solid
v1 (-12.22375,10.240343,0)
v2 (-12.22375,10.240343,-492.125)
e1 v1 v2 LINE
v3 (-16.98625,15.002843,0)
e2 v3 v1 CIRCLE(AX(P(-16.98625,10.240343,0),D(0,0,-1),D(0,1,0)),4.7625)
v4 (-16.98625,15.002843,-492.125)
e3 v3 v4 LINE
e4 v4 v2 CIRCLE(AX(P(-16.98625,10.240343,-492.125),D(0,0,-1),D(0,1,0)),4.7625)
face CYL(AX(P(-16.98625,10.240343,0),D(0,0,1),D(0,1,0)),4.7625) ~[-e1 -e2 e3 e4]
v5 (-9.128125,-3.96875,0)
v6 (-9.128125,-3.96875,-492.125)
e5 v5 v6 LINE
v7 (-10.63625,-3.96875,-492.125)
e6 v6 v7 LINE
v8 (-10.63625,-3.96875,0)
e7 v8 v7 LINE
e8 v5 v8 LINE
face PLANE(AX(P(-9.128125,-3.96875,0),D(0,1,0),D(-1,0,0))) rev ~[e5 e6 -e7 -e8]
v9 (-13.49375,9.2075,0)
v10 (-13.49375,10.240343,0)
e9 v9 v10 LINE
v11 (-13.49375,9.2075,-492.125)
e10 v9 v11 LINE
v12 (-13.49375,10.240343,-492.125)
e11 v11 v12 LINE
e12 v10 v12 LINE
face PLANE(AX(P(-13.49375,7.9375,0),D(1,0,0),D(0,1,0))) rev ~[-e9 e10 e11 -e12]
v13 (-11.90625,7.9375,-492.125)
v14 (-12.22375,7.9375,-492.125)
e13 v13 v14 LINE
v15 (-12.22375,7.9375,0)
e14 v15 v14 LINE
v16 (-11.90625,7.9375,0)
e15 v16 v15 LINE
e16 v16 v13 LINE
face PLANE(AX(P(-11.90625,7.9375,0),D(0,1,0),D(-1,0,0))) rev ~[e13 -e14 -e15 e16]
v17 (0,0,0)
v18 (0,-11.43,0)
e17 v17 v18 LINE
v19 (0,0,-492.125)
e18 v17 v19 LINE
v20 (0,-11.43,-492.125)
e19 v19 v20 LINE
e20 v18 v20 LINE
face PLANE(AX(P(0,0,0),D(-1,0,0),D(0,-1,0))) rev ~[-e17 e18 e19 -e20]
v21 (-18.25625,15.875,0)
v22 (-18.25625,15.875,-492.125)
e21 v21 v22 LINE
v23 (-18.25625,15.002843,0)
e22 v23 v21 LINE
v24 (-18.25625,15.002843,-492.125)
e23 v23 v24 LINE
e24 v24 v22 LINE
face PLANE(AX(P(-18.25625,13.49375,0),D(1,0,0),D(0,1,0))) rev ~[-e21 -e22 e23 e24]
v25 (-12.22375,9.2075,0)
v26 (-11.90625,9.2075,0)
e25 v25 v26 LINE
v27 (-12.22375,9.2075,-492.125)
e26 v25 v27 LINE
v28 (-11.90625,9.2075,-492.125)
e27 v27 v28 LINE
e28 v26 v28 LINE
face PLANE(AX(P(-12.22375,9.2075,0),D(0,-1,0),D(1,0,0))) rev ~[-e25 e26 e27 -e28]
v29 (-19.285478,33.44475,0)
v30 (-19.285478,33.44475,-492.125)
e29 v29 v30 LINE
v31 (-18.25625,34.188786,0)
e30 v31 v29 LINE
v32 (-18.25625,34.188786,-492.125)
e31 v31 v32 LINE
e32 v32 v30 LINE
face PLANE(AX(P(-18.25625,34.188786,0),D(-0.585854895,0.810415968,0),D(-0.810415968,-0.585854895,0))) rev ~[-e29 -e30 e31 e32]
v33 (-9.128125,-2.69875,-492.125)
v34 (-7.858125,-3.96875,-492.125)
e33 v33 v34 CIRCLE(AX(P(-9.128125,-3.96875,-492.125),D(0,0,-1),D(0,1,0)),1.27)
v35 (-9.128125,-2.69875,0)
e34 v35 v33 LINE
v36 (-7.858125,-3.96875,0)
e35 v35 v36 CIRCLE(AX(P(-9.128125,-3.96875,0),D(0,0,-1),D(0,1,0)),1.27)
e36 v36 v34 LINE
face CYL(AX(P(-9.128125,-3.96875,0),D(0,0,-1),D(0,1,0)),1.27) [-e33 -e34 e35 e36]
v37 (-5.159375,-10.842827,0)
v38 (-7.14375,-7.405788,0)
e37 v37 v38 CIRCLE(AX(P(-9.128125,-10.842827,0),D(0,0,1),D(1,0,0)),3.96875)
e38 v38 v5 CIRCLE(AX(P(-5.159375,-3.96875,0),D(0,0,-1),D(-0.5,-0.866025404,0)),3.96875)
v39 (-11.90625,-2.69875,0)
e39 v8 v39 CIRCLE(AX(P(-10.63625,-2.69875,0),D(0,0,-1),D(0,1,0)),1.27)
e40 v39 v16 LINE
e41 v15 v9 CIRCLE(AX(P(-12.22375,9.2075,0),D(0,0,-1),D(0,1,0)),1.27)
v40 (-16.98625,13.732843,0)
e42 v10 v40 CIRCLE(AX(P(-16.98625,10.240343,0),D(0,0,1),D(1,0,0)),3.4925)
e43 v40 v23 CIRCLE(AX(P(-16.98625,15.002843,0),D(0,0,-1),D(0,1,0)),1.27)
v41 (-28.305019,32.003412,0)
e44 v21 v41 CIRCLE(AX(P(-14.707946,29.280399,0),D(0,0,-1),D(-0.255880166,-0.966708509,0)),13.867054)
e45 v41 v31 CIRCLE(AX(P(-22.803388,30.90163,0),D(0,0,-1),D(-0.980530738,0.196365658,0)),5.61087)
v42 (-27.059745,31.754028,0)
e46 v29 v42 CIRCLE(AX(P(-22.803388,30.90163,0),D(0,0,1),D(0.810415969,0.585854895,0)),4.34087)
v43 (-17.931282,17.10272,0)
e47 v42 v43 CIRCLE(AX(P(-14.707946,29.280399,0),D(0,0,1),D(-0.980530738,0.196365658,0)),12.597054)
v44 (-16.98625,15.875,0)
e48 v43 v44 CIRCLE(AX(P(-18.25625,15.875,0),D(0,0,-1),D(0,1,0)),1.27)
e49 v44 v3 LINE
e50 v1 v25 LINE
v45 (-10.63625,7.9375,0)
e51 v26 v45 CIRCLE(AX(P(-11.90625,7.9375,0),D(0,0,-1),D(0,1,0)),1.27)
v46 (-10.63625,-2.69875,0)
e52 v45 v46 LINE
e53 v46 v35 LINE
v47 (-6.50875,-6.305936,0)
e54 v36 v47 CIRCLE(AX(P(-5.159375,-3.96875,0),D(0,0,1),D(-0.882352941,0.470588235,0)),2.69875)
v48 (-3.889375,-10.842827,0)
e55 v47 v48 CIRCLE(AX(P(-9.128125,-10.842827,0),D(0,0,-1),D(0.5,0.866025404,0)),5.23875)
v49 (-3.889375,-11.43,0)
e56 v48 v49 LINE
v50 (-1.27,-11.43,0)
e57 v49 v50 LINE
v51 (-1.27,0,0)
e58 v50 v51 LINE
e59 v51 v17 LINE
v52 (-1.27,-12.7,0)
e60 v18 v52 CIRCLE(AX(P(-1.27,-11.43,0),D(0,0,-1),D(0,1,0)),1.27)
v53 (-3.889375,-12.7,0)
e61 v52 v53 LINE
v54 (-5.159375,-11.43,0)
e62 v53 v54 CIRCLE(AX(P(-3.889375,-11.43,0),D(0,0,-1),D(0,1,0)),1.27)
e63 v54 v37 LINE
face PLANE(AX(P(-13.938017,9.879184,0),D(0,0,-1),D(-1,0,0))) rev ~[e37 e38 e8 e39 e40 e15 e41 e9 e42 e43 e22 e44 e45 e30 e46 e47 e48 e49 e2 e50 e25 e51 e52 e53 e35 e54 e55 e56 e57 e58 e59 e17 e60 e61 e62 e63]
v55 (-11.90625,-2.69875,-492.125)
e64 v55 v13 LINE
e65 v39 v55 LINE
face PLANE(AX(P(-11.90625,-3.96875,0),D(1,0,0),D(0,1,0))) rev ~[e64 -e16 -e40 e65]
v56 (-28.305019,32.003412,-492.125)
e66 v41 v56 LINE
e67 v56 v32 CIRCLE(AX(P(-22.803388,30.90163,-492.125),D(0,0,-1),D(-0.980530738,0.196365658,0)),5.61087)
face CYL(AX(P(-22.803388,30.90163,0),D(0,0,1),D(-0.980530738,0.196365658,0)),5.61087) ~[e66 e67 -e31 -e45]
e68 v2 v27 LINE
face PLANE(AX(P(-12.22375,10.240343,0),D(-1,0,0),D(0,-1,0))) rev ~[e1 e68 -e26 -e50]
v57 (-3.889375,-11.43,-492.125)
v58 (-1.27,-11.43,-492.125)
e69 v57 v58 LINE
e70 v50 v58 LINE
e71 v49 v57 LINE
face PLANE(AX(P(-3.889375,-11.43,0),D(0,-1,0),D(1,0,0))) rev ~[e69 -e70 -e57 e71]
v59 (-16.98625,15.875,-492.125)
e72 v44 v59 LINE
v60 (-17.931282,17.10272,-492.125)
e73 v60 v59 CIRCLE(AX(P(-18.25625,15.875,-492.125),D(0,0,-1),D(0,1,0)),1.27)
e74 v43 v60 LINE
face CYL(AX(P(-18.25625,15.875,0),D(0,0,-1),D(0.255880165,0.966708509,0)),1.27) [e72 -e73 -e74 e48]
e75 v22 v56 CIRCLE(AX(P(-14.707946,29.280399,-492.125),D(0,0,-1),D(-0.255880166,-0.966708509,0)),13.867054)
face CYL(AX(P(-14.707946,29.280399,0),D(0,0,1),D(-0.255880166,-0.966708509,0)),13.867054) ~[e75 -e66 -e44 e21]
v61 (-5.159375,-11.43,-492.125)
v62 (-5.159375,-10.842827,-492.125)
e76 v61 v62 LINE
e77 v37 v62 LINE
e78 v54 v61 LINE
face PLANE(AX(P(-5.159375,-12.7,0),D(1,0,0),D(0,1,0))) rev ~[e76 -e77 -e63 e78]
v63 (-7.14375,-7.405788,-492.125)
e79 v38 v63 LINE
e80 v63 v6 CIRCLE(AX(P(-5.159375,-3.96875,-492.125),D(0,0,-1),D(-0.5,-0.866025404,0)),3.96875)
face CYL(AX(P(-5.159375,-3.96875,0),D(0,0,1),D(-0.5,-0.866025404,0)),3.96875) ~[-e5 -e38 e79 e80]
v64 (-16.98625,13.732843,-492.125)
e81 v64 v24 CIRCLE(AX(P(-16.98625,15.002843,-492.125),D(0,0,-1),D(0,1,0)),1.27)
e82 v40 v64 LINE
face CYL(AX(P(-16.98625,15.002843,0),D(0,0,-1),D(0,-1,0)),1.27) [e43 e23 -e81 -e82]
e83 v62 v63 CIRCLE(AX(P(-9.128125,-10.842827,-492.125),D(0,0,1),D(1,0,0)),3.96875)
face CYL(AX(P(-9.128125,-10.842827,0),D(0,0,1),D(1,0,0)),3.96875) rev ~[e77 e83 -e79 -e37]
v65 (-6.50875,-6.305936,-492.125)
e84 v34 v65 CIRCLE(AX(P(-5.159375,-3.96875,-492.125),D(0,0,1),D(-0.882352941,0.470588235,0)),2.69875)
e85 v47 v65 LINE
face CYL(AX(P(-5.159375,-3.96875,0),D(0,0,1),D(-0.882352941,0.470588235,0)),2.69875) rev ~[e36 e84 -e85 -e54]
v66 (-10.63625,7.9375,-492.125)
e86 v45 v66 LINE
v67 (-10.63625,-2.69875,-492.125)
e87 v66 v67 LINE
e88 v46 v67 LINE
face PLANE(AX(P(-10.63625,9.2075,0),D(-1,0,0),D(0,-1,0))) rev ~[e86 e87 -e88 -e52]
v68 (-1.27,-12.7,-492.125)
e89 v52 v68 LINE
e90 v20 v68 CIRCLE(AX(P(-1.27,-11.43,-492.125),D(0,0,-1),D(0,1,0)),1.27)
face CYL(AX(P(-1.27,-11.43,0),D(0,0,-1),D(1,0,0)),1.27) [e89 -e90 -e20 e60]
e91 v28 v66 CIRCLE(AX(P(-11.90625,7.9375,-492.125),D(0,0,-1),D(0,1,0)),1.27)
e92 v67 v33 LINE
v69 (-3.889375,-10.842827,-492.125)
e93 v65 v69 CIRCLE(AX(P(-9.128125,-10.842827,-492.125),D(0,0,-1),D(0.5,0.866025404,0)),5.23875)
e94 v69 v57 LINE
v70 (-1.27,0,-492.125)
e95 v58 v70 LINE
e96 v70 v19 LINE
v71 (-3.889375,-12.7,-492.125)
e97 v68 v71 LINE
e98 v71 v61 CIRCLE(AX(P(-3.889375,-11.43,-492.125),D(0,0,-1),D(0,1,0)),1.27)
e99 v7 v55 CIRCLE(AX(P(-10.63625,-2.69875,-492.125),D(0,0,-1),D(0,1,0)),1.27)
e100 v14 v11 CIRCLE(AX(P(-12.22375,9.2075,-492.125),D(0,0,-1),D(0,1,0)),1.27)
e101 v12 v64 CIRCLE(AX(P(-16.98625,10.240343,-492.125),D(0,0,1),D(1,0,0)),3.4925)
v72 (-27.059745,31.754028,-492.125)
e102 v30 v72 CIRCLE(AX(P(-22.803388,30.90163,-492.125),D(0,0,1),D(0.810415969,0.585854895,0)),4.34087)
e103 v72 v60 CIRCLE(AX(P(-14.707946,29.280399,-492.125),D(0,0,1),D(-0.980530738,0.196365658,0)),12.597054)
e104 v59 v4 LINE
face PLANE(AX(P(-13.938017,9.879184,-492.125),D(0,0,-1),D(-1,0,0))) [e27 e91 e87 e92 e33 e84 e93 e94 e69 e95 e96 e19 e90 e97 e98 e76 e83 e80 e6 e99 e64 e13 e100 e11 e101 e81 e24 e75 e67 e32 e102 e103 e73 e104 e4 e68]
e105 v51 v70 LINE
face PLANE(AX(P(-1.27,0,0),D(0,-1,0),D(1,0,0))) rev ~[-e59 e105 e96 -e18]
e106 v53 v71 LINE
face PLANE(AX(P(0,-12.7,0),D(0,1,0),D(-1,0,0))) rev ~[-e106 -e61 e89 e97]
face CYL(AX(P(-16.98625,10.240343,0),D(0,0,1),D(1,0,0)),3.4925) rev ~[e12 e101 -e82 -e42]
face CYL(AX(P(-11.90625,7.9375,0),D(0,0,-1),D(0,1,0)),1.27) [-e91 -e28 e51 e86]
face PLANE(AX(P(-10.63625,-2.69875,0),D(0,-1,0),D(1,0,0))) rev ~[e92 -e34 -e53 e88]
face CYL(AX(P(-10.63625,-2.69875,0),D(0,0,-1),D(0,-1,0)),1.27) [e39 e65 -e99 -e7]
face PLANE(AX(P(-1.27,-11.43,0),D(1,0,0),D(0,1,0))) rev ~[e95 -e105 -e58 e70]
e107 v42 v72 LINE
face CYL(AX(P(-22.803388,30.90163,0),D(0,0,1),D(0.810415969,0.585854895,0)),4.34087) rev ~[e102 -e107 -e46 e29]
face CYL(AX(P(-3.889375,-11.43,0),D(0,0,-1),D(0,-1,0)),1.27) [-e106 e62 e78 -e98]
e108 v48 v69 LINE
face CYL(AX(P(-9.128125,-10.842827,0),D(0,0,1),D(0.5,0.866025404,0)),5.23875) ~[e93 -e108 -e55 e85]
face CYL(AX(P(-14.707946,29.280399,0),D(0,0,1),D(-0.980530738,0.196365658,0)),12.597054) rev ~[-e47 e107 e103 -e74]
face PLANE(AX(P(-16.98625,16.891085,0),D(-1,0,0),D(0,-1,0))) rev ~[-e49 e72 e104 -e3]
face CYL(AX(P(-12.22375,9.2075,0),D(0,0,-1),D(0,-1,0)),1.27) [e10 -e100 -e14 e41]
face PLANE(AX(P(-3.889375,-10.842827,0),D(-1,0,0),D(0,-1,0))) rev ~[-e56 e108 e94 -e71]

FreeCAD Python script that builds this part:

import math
import FreeCAD as App
import Part
import Sketcher

V = App.Vector
Q = App.Units.Quantity


def edges_at(feature, points):
    """Names of the edges that pass closest to the given points."""
    edges = feature.Shape.Edges
    near = lambda p: min(range(len(edges)), key=lambda i: edges[i].distToShape(Part.Vertex(*p))[0])
    return sorted({f"Edge{near(p) + 1}" for p in points})

doc = App.newDocument("Part")
params = doc.addObject("Spreadsheet::Sheet", "Params")
for row, (alias, value) in enumerate([
    ("sketch1_height", "0.5 in"),
    ("sketch1_radius", "0.1875 in"),
    ("sketch1_radius2", "0.15625 in"),
    ("sketch1_width", "0.05 in"),
    ("sketch1_height2", "0.45 in"),
    ("pad1_length", "19.375 in"),
    ("fillet_radius", "0.05 in"),
], start=1):
    params.set(f"A{row}", alias)
    params.set(f"B{row}", "=" + value)
    params.setAlias(f"B{row}", alias)

body = doc.addObject("PartDesign::Body", "Body")

sketch1 = body.newObject("Sketcher::SketchObject", "Sketch")
sketch1.AttachmentSupport = (doc.getObject("XY_Plane"), [""])
sketch1.MapMode = "FlatFace"
sketch1.addGeometry([
    Part.LineSegment(V(0, -12.7, 0), V(0, 0, 0)),
    Part.LineSegment(V(0, 0, 0), V(-1.3, 0, 0)),
    Part.LineSegment(V(-1.3, 0, 0), V(-1.3, -11.4, 0)),
    Part.LineSegment(V(-1.3, -11.4, 0), V(-3.9, -11.4, 0)),
    Part.LineSegment(V(-3.9, -11.4, 0), V(-3.9, -10.8, 0)),
    Part.ArcOfCircle(Part.Circle(V(-9.1, -10.8, 0), V(0, 0, 1), 5.2), math.radians(0), math.radians(60)),
    Part.ArcOfCircle(Part.Circle(V(-5.2, -4, 0), V(0, 0, 1), 2.7), math.radians(152), math.radians(240)),
    Part.LineSegment(V(-7.5, -2.7, 0), V(-10.6, -2.7, 0)),
    Part.LineSegment(V(-10.6, -2.7, 0), V(-10.6, 9.2, 0)),
    Part.LineSegment(V(-10.6, 9.2, 0), V(-12.2, 9.2, 0)),
    Part.LineSegment(V(-12.2, 9.2, 0), V(-12.2, 10.2, 0)),
    Part.ArcOfCircle(Part.Circle(V(-17, 10.2, 0), V(0, 0, 1), 4.8), math.radians(0), math.radians(90)),
    Part.LineSegment(V(-17, 15, 0), V(-17, 16.9, 0)),
    Part.ArcOfCircle(Part.Circle(V(-14.7, 29.3, 0), V(0, 0, 1), 12.6), math.radians(169), math.radians(260)),
    Part.ArcOfCircle(Part.Circle(V(-22.8, 30.9, 0), V(0, 0, 1), 4.3), math.radians(36), math.radians(169)),
    Part.LineSegment(V(-19.3, 33.4, 0), V(-18.3, 34.2, 0)),
    Part.ArcOfCircle(Part.Circle(V(-22.8, 30.9, 0), V(0, 0, 1), 5.6), math.radians(36), math.radians(169)),
    Part.ArcOfCircle(Part.Circle(V(-14.7, 29.3, 0), V(0, 0, 1), 13.9), math.radians(169), math.radians(255)),
    Part.LineSegment(V(-18.3, 15.9, 0), V(-18.3, 13.5, 0)),
    Part.ArcOfCircle(Part.Circle(V(-17, 10.2, 0), V(0, 0, 1), 3.5), math.radians(0), math.radians(111)),
    Part.LineSegment(V(-13.5, 10.2, 0), V(-13.5, 7.9, 0)),
    Part.LineSegment(V(-13.5, 7.9, 0), V(-11.9, 7.9, 0)),
    Part.LineSegment(V(-11.9, 7.9, 0), V(-11.9, -4, 0)),
    Part.LineSegment(V(-11.9, -4, 0), V(-9.1, -4, 0)),
    Part.ArcOfCircle(Part.Circle(V(-5.2, -4, 0), V(0, 0, 1), 4), math.radians(-180), math.radians(-120)),
    Part.ArcOfCircle(Part.Circle(V(-9.1, -10.8, 0), V(0, 0, 1), 4), math.radians(0), math.radians(60)),
    Part.LineSegment(V(-5.2, -10.8, 0), V(-5.2, -12.7, 0)),
    Part.LineSegment(V(-5.2, -12.7, 0), V(0, -12.7, 0)),
], False)
sketch1.addConstraint([
    Sketcher.Constraint("Coincident", 0, 2, 1, 1),
    Sketcher.Constraint("Coincident", 1, 2, 2, 1),
    Sketcher.Constraint("Coincident", 2, 2, 3, 1),
    Sketcher.Constraint("Coincident", 3, 2, 4, 1),
    Sketcher.Constraint("Tangent", 4, 2, 5, 1),
    Sketcher.Constraint("Tangent", 5, 2, 6, 2),
    Sketcher.Constraint("Coincident", 6, 1, 7, 1),
    Sketcher.Constraint("Coincident", 7, 2, 8, 1),
    Sketcher.Constraint("Coincident", 8, 2, 9, 1),
    Sketcher.Constraint("Coincident", 9, 2, 10, 1),
    Sketcher.Constraint("Tangent", 10, 2, 11, 1),
    Sketcher.Constraint("Coincident", 11, 2, 12, 1),
    Sketcher.Constraint("Coincident", 12, 2, 13, 2),
    Sketcher.Constraint("Tangent", 13, 1, 14, 2),
    Sketcher.Constraint("Coincident", 14, 1, 15, 1),
    Sketcher.Constraint("Coincident", 15, 2, 16, 1),
    Sketcher.Constraint("Tangent", 16, 2, 17, 1),
    Sketcher.Constraint("Coincident", 17, 2, 18, 1),
    Sketcher.Constraint("Coincident", 18, 2, 19, 2),
    Sketcher.Constraint("Tangent", 19, 1, 20, 1),
    Sketcher.Constraint("Coincident", 20, 2, 21, 1),
    Sketcher.Constraint("Coincident", 21, 2, 22, 1),
    Sketcher.Constraint("Coincident", 22, 2, 23, 1),
    Sketcher.Constraint("Coincident", 23, 2, 24, 1),
    Sketcher.Constraint("Tangent", 24, 2, 25, 2),
    Sketcher.Constraint("Tangent", 25, 1, 26, 1),
    Sketcher.Constraint("Coincident", 26, 2, 27, 1),
    Sketcher.Constraint("Coincident", 27, 2, 0, 1),
    Sketcher.Constraint("Vertical", 0),
    Sketcher.Constraint("Horizontal", 1),
    Sketcher.Constraint("Vertical", 2),
    Sketcher.Constraint("Horizontal", 3),
    Sketcher.Constraint("Vertical", 4),
    Sketcher.Constraint("Horizontal", 7),
    Sketcher.Constraint("Vertical", 8),
    Sketcher.Constraint("Horizontal", 9),
    Sketcher.Constraint("Vertical", 10),
    Sketcher.Constraint("Vertical", 12),
    Sketcher.Constraint("Vertical", 18),
    Sketcher.Constraint("Vertical", 20),
    Sketcher.Constraint("Horizontal", 21),
    Sketcher.Constraint("Vertical", 22),
    Sketcher.Constraint("Horizontal", 23),
    Sketcher.Constraint("Vertical", 26),
    Sketcher.Constraint("Horizontal", 27),
    Sketcher.Constraint("Coincident", 0, 2, -1, 1),
    Sketcher.Constraint("Coincident", 16, 3, 14, 3),
    Sketcher.Constraint("Coincident", 17, 3, 13, 3),
    Sketcher.Constraint("Coincident", 19, 3, 11, 3),
    Sketcher.Constraint("Coincident", 24, 3, 6, 3),
    Sketcher.Constraint("Coincident", 25, 3, 5, 3),
    Sketcher.Constraint("Equal", 24, 25),
    Sketcher.Constraint("Horizontal", 24, 3, 22, 2),
    Sketcher.Constraint("Vertical", 19, 3, 11, 2),
    Sketcher.Constraint("Vertical", 15, 2, 17, 2),
    Sketcher.Constraint("Vertical", 25, 3, 23, 2),
    Sketcher.Constraint("Equal", 9, 21),
    Sketcher.Constraint("Equal", 8, 22),
    Sketcher.Constraint("DistanceY", 0, 1, 0, 2, Q("0.5 in")),
    Sketcher.Constraint("Radius", 11, Q("0.1875 in")),
    Sketcher.Constraint("Radius", 24, Q("0.15625 in")),
    Sketcher.Constraint("DistanceX", 1, 2, 1, 1, Q("0.05 in")),
    Sketcher.Constraint("DistanceY", 2, 2, 2, 1, Q("0.45 in")),
    Sketcher.Constraint("Radius", 19, Q("0.1375 in")),
    Sketcher.Constraint("Distance", 15, Q("0.05 in")),
    Sketcher.Constraint("DistanceX", 9, 2, 9, 1, Q("0.0625 in")),
    Sketcher.Constraint("DistanceX", 23, 1, 23, 2, Q("0.109375 in")),
    Sketcher.Constraint("DistanceX", 27, 1, 27, 2, Q("0.203125 in")),
    Sketcher.Constraint("DistanceY", 8, 1, 8, 2, Q("0.46875 in")),
    Sketcher.Constraint("DistanceY", 18, 2, 18, 1, Q("0.09375 in")),
    Sketcher.Constraint("DistanceX", 6, 3, 3, 2, Q("0.05 in")),
    Sketcher.Constraint("DistanceY", 6, 3, 6, 1, Q("0.05 in")),
    Sketcher.Constraint("DistanceX", 17, 2, 11, 2, Q("0.05 in")),
    Sketcher.Constraint("DistanceY", 6, 3, -1, 1, Q("0.15625 in")),
    Sketcher.Constraint("DistanceY", -1, 1, 17, 2, Q("0.625 in")),
    Sketcher.Constraint("Radius", 14, 4.34087),
    Sketcher.Constraint("Radius", 13, 12.597054),
    Sketcher.Constraint("DistanceX", 16, 2, 14, 1, Q("0.3551 in")),
    Sketcher.Constraint("DistanceY", -1, 1, 13, 3, 29.280399),
    Sketcher.Constraint("DistanceX", 13, 1, 13, 3, 12.351799),
])
sketch1.setExpression("Constraints[58]", "Params.sketch1_height")
sketch1.setExpression("Constraints[59]", "Params.sketch1_radius")
sketch1.setExpression("Constraints[60]", "Params.sketch1_radius2")
sketch1.setExpression("Constraints[61]", "Params.sketch1_width")
sketch1.setExpression("Constraints[62]", "Params.sketch1_height2")
pad1 = body.newObject("PartDesign::Pad", "Pad")
pad1.Profile = sketch1
pad1.setExpression("Length", "Params.pad1_length")
pad1.Reversed = True
doc.recompute()

fillet = body.newObject("PartDesign::Fillet", "Fillet")
fillet.Base = (pad1, edges_at(pad1, [
    (-16.986, 16.891, -246.062),
    (-10.636, 9.207, -246.062),
    (-7.541, -2.699, -246.062),
    (0, -12.7, -246.062),
    (-5.159, -12.7, -246.062),
    (-11.906, -3.969, -246.062),
    (-13.494, 7.938, -246.062),
    (-18.256, 13.494, -246.062),
]))
fillet.setExpression("Radius", "Params.fillet_radius")

doc.recompute()
